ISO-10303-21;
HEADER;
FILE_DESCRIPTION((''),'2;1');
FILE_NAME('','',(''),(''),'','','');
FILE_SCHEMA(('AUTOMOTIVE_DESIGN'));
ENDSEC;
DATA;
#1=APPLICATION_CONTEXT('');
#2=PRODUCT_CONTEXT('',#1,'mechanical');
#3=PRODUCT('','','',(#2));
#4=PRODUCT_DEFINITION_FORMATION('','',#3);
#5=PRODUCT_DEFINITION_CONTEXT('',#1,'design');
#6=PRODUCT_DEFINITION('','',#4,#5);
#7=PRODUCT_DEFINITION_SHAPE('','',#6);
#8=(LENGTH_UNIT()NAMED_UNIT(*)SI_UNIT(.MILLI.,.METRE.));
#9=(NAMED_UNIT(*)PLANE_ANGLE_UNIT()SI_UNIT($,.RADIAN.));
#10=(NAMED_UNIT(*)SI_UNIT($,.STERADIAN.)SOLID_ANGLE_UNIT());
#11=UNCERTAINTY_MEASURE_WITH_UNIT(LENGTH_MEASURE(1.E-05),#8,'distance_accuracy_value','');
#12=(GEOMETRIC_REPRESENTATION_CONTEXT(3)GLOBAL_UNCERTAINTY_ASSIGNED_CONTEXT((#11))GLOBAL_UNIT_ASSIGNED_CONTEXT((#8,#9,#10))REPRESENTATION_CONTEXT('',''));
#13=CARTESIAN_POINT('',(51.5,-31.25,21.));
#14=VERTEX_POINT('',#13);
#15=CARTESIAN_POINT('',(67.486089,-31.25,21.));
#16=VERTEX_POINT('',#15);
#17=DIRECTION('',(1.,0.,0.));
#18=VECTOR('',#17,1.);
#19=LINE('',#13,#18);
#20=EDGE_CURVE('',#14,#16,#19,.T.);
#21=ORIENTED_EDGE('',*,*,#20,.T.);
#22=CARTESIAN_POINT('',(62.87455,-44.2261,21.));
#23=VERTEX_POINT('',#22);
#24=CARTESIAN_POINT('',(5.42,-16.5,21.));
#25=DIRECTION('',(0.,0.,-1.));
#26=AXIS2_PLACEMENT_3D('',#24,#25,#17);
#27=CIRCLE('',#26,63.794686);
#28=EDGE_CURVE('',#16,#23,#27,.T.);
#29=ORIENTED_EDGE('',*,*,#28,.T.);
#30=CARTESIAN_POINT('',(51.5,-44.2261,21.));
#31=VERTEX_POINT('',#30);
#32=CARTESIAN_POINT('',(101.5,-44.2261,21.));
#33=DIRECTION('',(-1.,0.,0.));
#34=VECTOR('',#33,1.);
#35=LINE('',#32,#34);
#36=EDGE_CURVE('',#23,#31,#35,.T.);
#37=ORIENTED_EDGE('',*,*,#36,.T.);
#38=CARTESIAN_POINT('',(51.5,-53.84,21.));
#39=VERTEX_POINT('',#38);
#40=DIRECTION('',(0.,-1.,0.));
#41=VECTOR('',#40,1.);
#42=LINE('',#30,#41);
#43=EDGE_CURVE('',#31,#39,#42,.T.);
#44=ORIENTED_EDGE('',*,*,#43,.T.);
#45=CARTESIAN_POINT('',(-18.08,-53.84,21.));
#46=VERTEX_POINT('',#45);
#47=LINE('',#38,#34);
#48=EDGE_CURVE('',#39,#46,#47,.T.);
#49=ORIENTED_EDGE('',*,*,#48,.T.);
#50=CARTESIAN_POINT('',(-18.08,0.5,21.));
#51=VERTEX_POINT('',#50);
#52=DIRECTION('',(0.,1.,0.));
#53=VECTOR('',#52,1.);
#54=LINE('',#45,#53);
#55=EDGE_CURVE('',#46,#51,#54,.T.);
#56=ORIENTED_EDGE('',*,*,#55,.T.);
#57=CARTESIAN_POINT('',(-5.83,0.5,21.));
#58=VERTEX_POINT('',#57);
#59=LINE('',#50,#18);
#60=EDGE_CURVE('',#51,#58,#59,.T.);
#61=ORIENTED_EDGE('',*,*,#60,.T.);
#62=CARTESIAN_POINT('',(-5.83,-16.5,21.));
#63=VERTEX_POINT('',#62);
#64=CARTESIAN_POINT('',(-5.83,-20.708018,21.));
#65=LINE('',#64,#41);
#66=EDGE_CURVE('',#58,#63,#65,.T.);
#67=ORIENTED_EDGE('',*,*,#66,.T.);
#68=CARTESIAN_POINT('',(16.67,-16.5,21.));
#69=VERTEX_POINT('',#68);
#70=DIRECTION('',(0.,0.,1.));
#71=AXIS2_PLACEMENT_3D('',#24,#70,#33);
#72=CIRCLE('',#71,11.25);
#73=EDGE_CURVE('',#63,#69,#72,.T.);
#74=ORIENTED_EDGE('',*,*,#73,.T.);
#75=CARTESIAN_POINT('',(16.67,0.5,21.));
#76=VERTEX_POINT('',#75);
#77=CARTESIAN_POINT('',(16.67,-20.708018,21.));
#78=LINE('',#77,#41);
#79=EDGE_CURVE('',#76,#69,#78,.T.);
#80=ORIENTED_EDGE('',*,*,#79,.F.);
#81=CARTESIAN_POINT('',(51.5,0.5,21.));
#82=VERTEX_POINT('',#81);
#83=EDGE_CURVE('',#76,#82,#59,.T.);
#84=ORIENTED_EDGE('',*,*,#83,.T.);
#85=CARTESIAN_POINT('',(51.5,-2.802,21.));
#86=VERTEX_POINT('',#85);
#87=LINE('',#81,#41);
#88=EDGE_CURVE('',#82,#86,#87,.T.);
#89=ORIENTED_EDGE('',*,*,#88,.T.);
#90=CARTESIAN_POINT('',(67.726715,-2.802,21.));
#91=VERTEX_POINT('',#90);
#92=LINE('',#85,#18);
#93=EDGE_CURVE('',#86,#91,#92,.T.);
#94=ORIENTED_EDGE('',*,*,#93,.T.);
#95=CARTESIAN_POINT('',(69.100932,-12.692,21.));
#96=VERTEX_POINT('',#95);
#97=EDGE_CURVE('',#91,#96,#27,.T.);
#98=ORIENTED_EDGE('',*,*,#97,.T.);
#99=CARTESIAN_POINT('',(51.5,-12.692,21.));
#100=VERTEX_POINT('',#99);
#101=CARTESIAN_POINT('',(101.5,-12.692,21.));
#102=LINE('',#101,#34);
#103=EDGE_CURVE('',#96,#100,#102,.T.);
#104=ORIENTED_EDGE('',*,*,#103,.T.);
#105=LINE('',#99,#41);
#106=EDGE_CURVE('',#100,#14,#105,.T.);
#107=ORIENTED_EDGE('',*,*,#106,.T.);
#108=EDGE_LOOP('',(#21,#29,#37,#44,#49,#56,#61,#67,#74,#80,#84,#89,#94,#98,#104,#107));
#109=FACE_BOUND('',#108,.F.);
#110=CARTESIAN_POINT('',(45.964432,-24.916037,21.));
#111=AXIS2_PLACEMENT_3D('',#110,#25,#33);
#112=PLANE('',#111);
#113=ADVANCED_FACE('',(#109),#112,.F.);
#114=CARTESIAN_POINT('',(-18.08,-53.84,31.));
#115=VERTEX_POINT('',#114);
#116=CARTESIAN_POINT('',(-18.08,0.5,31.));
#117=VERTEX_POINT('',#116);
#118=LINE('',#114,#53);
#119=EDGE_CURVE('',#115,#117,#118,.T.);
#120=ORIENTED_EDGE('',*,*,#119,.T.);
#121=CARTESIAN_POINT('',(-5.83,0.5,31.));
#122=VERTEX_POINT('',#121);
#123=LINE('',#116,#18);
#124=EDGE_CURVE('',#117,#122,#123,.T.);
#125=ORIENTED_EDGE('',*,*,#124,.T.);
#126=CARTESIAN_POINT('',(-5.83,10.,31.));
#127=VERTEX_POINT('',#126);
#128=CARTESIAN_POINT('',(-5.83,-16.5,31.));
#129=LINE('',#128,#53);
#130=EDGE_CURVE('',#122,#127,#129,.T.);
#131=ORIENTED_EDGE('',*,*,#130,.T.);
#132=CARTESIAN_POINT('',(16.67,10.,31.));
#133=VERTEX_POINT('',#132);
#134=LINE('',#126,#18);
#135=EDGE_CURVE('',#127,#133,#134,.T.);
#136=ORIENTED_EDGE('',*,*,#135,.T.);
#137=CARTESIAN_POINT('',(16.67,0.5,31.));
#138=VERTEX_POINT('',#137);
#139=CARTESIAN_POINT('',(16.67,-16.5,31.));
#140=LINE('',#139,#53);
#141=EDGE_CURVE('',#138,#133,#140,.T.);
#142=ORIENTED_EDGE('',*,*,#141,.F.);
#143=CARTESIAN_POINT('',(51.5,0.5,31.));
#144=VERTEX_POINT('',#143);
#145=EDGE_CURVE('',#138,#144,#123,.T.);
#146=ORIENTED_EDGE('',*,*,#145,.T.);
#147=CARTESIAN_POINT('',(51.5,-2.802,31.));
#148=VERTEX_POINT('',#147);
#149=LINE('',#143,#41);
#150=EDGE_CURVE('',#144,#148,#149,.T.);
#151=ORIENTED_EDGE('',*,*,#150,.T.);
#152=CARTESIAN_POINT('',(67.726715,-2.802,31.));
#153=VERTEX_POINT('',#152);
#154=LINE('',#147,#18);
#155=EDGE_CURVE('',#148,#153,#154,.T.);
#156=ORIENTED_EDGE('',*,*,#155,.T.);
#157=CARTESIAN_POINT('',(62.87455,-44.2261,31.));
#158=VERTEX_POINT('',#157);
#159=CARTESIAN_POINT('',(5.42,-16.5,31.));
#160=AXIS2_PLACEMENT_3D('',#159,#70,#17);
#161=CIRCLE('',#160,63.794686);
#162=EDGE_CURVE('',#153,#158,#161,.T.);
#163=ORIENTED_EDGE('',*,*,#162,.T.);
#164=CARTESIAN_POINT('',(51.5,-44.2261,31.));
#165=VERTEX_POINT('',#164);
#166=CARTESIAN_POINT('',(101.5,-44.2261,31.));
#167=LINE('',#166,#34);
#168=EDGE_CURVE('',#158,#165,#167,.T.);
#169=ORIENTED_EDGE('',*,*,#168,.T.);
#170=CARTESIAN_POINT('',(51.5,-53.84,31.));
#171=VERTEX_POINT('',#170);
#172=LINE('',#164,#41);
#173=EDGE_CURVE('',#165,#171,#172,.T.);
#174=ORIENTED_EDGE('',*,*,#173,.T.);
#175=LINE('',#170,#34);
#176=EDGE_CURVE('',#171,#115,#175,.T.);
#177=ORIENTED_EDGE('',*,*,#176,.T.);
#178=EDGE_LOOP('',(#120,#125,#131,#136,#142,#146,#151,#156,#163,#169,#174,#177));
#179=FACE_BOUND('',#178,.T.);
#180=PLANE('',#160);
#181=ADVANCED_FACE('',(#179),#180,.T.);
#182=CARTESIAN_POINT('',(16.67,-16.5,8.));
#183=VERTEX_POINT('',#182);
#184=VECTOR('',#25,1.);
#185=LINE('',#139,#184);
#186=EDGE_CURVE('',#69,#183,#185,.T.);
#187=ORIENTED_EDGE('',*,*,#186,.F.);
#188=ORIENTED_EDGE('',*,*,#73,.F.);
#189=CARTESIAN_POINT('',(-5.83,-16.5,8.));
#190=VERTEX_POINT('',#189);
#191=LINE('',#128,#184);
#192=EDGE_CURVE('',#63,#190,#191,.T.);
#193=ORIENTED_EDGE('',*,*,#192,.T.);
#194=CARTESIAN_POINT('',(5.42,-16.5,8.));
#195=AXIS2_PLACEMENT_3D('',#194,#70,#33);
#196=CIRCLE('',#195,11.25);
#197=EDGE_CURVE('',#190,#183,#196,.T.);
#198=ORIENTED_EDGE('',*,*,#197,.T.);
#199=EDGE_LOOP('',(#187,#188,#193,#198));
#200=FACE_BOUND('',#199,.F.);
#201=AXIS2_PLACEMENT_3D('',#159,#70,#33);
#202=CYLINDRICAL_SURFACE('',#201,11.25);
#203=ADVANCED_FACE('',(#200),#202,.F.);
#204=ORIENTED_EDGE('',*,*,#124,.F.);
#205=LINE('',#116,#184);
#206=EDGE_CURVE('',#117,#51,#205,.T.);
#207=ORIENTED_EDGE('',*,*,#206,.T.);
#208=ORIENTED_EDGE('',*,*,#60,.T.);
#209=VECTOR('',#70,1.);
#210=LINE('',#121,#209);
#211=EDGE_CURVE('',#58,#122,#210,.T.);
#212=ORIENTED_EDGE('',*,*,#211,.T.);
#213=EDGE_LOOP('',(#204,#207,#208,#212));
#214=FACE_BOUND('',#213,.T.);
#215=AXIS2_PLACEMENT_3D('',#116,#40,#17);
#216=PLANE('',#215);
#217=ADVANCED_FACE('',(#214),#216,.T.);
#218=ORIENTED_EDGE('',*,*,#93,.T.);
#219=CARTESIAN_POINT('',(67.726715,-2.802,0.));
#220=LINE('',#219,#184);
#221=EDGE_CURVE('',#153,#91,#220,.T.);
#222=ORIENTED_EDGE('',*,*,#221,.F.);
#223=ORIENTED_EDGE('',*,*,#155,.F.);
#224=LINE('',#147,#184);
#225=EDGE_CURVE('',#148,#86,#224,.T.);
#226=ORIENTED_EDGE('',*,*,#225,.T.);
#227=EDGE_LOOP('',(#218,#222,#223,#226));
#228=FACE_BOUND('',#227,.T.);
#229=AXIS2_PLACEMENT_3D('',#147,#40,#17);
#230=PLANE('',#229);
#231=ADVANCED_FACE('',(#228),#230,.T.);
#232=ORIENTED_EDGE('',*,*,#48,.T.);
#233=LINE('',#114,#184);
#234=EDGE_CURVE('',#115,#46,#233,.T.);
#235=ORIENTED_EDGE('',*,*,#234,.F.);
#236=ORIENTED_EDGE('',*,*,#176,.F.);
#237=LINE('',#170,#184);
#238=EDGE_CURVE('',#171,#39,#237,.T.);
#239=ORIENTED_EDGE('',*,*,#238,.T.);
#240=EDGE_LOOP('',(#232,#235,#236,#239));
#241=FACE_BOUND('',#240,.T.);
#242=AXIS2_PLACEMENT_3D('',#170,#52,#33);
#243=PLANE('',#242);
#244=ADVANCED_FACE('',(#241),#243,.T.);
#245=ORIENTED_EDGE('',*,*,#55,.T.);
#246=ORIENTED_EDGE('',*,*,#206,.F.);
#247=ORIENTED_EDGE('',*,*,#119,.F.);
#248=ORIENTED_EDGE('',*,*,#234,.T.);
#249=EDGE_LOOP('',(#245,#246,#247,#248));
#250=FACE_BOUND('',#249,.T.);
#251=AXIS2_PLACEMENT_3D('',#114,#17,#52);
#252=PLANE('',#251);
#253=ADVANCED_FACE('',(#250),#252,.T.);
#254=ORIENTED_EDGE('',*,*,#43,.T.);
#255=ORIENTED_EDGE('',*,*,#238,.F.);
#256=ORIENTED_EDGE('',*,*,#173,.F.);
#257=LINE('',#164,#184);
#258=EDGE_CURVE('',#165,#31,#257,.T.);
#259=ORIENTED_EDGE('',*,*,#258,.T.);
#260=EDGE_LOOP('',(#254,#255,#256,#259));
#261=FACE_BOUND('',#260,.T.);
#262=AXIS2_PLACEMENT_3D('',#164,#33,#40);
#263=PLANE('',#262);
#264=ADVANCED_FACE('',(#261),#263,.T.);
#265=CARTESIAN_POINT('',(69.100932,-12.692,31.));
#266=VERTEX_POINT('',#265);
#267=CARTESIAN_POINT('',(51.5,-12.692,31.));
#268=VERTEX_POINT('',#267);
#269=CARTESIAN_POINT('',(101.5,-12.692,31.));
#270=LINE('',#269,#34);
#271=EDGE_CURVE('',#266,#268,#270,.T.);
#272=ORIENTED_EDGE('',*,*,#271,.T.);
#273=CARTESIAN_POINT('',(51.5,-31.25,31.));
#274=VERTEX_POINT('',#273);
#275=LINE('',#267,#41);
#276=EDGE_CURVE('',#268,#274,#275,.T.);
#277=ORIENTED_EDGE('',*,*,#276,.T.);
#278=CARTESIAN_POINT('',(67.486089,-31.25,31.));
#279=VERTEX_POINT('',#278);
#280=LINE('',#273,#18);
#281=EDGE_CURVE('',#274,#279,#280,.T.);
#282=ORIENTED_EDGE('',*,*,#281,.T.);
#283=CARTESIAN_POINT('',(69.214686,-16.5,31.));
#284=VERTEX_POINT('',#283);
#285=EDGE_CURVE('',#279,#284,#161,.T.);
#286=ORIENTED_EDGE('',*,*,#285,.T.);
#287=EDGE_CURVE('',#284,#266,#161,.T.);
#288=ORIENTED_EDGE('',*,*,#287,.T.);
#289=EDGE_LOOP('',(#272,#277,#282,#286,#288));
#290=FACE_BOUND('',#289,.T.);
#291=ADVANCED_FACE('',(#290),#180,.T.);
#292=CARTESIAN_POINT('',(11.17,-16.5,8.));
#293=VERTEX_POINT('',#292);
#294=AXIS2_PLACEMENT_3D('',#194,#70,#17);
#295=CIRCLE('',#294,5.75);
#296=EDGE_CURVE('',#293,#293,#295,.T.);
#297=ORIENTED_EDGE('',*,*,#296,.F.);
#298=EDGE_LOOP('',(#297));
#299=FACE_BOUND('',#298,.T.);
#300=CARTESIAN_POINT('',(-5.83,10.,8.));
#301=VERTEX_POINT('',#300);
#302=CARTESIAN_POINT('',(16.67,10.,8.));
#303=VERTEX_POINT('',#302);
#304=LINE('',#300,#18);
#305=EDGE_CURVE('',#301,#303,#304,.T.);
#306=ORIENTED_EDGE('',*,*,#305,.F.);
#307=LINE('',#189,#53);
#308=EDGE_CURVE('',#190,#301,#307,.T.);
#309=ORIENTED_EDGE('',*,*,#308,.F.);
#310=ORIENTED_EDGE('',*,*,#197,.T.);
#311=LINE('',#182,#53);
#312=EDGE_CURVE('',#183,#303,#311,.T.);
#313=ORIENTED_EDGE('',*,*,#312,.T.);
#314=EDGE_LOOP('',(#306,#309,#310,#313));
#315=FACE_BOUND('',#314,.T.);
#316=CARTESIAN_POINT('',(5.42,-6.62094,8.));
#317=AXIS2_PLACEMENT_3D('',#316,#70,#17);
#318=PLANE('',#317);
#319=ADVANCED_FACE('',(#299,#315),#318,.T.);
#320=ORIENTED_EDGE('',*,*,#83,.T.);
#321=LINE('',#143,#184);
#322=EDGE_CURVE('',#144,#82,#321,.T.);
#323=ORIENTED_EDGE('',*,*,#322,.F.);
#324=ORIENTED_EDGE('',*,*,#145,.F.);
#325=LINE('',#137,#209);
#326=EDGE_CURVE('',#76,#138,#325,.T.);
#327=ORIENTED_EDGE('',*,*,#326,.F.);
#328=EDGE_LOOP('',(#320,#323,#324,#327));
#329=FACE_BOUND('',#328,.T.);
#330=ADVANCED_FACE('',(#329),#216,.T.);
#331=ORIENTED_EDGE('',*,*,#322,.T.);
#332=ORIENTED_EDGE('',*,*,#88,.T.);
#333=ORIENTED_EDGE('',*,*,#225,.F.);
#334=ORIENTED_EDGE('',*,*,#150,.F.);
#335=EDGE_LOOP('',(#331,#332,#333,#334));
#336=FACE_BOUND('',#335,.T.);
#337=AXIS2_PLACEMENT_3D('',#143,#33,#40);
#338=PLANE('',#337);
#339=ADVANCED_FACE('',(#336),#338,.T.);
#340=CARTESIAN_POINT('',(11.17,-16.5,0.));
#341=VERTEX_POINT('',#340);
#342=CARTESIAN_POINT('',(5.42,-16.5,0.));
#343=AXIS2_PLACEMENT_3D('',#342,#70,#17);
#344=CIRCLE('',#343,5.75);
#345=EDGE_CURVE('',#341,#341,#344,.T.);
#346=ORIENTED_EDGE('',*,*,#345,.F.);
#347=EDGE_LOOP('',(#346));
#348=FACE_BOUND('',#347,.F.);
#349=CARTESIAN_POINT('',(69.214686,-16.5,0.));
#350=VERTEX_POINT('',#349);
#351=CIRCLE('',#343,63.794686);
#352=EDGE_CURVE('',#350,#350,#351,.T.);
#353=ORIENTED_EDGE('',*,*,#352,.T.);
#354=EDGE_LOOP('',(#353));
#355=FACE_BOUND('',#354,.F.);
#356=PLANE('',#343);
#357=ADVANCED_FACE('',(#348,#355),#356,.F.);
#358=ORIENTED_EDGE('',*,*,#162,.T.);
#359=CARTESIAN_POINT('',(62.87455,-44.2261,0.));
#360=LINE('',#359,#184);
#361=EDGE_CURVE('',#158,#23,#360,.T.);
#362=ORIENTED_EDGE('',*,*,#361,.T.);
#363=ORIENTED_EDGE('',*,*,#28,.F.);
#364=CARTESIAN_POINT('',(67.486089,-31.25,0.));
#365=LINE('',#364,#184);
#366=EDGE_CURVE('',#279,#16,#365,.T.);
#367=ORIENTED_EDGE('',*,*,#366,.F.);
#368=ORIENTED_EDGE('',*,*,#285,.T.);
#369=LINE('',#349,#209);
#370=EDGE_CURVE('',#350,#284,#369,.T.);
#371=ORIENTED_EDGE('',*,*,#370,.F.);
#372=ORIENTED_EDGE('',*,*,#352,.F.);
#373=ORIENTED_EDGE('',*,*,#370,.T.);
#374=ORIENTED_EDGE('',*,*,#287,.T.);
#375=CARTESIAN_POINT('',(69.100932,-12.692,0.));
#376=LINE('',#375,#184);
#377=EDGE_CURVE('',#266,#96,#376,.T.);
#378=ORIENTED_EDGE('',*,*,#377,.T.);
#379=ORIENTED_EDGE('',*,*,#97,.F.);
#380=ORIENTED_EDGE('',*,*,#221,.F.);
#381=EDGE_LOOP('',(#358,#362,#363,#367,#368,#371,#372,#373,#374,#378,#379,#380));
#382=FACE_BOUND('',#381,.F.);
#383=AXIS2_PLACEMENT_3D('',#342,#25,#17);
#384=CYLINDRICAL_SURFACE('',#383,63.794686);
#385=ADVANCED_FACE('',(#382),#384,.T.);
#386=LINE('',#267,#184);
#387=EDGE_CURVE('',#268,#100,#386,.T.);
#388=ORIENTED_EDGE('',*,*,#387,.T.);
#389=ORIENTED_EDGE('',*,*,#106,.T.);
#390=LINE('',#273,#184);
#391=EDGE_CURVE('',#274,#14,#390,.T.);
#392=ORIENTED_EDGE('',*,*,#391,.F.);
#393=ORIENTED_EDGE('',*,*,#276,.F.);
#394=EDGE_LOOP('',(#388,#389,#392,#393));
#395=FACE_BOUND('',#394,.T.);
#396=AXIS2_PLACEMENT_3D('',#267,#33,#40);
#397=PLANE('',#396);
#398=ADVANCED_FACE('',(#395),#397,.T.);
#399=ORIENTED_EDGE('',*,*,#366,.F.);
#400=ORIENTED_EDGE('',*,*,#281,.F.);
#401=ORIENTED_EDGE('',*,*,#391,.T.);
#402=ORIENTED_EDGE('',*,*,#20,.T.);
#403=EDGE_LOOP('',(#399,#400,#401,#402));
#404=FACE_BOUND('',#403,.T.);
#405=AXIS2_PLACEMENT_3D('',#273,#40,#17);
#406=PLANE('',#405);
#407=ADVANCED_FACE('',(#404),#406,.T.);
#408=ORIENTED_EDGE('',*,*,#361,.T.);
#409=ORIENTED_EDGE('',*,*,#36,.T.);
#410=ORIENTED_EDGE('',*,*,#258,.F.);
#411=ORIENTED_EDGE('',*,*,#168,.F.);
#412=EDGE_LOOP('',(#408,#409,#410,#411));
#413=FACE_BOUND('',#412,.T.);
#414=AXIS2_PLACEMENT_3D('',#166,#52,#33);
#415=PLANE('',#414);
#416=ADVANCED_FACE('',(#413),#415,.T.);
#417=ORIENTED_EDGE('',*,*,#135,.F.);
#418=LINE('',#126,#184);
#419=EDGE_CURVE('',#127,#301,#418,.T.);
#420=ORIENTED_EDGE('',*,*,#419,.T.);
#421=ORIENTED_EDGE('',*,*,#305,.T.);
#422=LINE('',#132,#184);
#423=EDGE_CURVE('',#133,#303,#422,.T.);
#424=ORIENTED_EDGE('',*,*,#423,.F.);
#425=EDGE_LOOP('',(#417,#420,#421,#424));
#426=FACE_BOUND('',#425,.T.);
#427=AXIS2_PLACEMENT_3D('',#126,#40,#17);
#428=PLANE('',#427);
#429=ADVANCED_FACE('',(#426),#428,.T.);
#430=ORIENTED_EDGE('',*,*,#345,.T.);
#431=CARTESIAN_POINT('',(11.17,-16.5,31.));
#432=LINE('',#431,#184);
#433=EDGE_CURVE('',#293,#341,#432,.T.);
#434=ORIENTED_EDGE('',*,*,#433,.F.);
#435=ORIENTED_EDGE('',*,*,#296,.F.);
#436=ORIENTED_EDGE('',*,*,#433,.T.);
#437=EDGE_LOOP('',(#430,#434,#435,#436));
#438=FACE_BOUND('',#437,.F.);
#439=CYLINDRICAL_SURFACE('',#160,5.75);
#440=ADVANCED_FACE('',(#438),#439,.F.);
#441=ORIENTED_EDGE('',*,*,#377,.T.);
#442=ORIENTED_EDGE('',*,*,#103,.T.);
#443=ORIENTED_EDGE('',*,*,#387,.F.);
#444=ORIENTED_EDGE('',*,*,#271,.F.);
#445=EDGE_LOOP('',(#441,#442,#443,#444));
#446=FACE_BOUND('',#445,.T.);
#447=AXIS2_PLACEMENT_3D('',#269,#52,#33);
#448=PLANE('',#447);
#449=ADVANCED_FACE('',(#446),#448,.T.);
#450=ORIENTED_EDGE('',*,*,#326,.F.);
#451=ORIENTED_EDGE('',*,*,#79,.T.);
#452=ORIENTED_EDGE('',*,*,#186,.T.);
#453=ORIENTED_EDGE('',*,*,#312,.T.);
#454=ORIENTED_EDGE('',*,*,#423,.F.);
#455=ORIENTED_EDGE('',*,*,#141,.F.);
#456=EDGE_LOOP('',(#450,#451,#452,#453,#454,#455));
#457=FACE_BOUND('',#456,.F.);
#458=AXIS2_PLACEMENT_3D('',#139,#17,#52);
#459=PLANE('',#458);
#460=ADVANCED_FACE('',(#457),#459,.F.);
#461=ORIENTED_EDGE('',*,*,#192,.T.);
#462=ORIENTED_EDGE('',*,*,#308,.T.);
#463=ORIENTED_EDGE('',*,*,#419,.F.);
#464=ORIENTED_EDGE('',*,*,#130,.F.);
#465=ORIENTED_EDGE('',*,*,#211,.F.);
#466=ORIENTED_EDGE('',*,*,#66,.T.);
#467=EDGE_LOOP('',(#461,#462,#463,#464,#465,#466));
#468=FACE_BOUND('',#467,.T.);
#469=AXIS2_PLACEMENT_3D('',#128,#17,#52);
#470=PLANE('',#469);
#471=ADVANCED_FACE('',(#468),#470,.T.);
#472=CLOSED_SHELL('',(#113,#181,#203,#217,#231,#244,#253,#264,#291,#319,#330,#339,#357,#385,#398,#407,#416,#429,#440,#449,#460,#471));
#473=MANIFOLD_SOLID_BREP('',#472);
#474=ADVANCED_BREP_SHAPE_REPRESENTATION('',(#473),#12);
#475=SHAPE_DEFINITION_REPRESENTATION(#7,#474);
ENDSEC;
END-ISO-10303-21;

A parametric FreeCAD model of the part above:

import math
import FreeCAD as App
import Part
import Sketcher
from FreeCAD import Vector


def add_polygon(sketch, points):
    """Adds a closed chain of lines whose ends are joined by coincident constraints."""
    first, n = sketch.GeometryCount, len(points)
    for a, b in zip(points, points[1:] + points[:1]):
        sketch.addGeometry(Part.LineSegment(App.Vector(*a, 0), App.Vector(*b, 0)), False)
    for i in range(n):
        sketch.addConstraint(Sketcher.Constraint("Coincident", first + i, 2, first + (i + 1) % n, 1))

doc = App.newDocument("Part")
body = doc.addObject("PartDesign::Body", "Body")

sketch1 = body.newObject("Sketcher::SketchObject", "Sketch")
sketch1.AttachmentSupport = (doc.getObject("XY_Plane"), [""])
sketch1.MapMode = "FlatFace"
sketch1.addGeometry(Part.Circle(Vector(5, -16, 0), Vector(0, 0, 1), 64), False)
sketch1.addConstraint([
    Sketcher.Constraint("DistanceY", 0, 3, -1, 1, 16.5),
    Sketcher.Constraint("Diameter", 0, 127.589372),
    Sketcher.Constraint("DistanceX", -1, 1, 0, 3, 5.42),
])
pad1 = body.newObject("PartDesign::Pad", "Pad")
pad1.Profile = sketch1
pad1.Length = 31

sketch2 = body.newObject("Sketcher::SketchObject", "Sketch001")
sketch2.AttachmentSupport = (doc.getObject("XY_Plane"), [""])
sketch2.MapMode = "FlatFace"
sketch2.AttachmentOffset = App.Placement(Vector(0, 0, 31), App.Rotation())
add_polygon(sketch2, [(51.5, 0.5), (-18.1, 0.5), (-18.1, -53.8), (51.5, -53.8), (51.5, -44.2), (101.5, -44.2), (101.5, -31.2), (51.5, -31.2), (51.5, -12.7), (101.5, -12.7), (101.5, -2.8), (51.5, -2.8)])
sketch2.addConstraint([
    Sketcher.Constraint("Horizontal", 0),
    Sketcher.Constraint("Vertical", 1),
    Sketcher.Constraint("Horizontal", 2),
    Sketcher.Constraint("Vertical", 3),
    Sketcher.Constraint("Horizontal", 4),
    Sketcher.Constraint("Vertical", 5),
    Sketcher.Constraint("Horizontal", 6),
    Sketcher.Constraint("Vertical", 7),
    Sketcher.Constraint("Horizontal", 8),
    Sketcher.Constraint("Vertical", 9),
    Sketcher.Constraint("Horizontal", 10),
    Sketcher.Constraint("Vertical", 11),
    Sketcher.Constraint("Vertical", 3, 2, 6, 2),
    Sketcher.Constraint("Vertical", 5, 2, 8, 2),
    Sketcher.Constraint("Vertical", 7, 2, 10, 2),
    Sketcher.Constraint("DistanceX", 4, 1, 4, 2, 50.0),
    Sketcher.Constraint("DistanceX", 0, 2, 0, 1, 69.58),
    Sketcher.Constraint("DistanceY", 1, 2, 1, 1, 54.34),
    Sketcher.Constraint("DistanceY", 9, 1, 9, 2, 9.89),
    Sketcher.Constraint("DistanceY", -1, 1, 0, 2, 0.5),
    Sketcher.Constraint("DistanceX", -1, 1, 2, 2, 51.5),
    Sketcher.Constraint("DistanceY", 7, 1, 7, 2, 18.558),
    Sketcher.Constraint("DistanceY", 11, 1, 11, 2, 3.302),
    Sketcher.Constraint("DistanceY", 3, 1, 3, 2, 9.6139),
])
pocket1 = body.newObject("PartDesign::Pocket", "Pocket")
pocket1.Profile = sketch2
pocket1.Length = 10

sketch3 = body.newObject("Sketcher::SketchObject", "Sketch002")
sketch3.AttachmentSupport = (doc.getObject("XY_Plane"), [""])
sketch3.MapMode = "FlatFace"
sketch3.AttachmentOffset = App.Placement(Vector(0, 0, 31), App.Rotation())
sketch3.addGeometry([
    Part.ArcOfCircle(Part.Circle(Vector(5, -16, 0), Vector(0, 0, 1), 11), math.radians(180), math.radians(360)),
    Part.LineSegment(Vector(17, -16, 0), Vector(17, 10, 0)),
    Part.LineSegment(Vector(17, 10, 0), Vector(-6, 10, 0)),
    Part.LineSegment(Vector(-6, 10, 0), Vector(-6, -16, 0)),
], False)
sketch3.addConstraint([
    Sketcher.Constraint("Tangent", 0, 2, 1, 1),
    Sketcher.Constraint("Coincident", 1, 2, 2, 1),
    Sketcher.Constraint("Coincident", 2, 2, 3, 1),
    Sketcher.Constraint("Tangent", 3, 2, 0, 1),
    Sketcher.Constraint("Vertical", 1),
    Sketcher.Constraint("Horizontal", 2),
    Sketcher.Constraint("Vertical", 3),
    Sketcher.Constraint("Radius", 0, 11.25),
    Sketcher.Constraint("DistanceY", 1, 1, 1, 2, 26.5),
    Sketcher.Constraint("DistanceY", -1, 1, 1, 2, 10.0),
    Sketcher.Constraint("DistanceX", -1, 1, 0, 3, 5.42),
])
pocket2 = body.newObject("PartDesign::Pocket", "Pocket001")
pocket2.Profile = sketch3
pocket2.Length = 23

sketch4 = body.newObject("Sketcher::SketchObject", "Sketch003")
sketch4.AttachmentSupport = (doc.getObject("XY_Plane"), [""])
sketch4.MapMode = "FlatFace"
sketch4.AttachmentOffset = App.Placement(Vector(0, 0, 31), App.Rotation())
sketch4.addGeometry(Part.Circle(Vector(5, -16, 0), Vector(0, 0, 1), 6), False)
sketch4.addConstraint([
    Sketcher.Constraint("Diameter", 0, 11.5),
    Sketcher.Constraint("DistanceY", 0, 3, -1, 1, 16.5),
    Sketcher.Constraint("DistanceX", -1, 1, 0, 3, 5.42),
])
pocket3 = body.newObject("PartDesign::Pocket", "Pocket002")
pocket3.Profile = sketch4
pocket3.Type = "ThroughAll"

doc.recompute()
